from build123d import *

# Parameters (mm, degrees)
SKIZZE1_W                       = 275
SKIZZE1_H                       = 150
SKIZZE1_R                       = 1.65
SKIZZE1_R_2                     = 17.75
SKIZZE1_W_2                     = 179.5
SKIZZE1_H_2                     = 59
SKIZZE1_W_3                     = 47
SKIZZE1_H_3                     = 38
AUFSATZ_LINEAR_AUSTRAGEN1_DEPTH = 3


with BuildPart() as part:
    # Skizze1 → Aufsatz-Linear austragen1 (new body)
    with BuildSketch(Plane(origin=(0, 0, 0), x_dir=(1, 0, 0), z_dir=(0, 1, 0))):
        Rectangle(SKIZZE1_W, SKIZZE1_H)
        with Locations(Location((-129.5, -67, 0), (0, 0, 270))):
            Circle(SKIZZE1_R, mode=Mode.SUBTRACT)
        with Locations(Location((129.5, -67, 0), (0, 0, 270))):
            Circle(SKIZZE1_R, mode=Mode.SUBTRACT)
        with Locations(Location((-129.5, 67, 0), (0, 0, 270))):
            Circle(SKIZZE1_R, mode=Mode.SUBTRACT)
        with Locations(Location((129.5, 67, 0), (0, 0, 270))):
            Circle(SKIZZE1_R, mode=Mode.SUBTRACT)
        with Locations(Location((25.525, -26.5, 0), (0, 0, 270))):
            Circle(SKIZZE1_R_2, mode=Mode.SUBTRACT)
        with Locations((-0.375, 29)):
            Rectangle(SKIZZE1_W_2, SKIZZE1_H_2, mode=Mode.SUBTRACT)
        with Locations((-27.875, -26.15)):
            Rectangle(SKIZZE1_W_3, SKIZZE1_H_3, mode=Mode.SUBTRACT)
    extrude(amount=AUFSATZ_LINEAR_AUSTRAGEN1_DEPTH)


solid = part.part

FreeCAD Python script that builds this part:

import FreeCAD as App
import Part
import Sketcher

V = App.Vector
Q = App.Units.Quantity


def add_polygon(sketch, points):
    """Adds a closed chain of lines whose ends are joined by coincident constraints."""
    first, n = sketch.GeometryCount, len(points)
    for a, b in zip(points, points[1:] + points[:1]):
        sketch.addGeometry(Part.LineSegment(App.Vector(*a, 0), App.Vector(*b, 0)), False)
    for i in range(n):
        sketch.addConstraint(Sketcher.Constraint("Coincident", first + i, 2, first + (i + 1) % n, 1))

doc = App.newDocument("Part")
params = doc.addObject("Spreadsheet::Sheet", "Params")
for row, (alias, value) in enumerate([
    ("sketch1_diameter", "3.3 mm"),
    ("sketch1_diameter2", "35.5 mm"),
    ("sketch1_width", "275 mm"),
    ("sketch1_width2", "47 mm"),
    ("sketch1_height", "150 mm"),
    ("pad1_length", "3 mm"),
], start=1):
    params.set(f"A{row}", alias)
    params.set(f"B{row}", "=" + value)
    params.setAlias(f"B{row}", alias)

body = doc.addObject("PartDesign::Body", "Body")

# Sketch on XZ plane
sketch1 = body.newObject("Sketcher::SketchObject", "Sketch")
sketch1.AttachmentSupport = (doc.getObject("XZ_Plane"), [""])
sketch1.MapMode = "FlatFace"
add_polygon(sketch1, [(-137.5, -75), (-137.5, 75), (137.5, 75), (137.5, -75)])  # lines 0-3
sketch1.addGeometry(Part.Circle(V(-129.5, 67, 0), V(0, 0, 1), 1.6), False)  # 4
add_polygon(sketch1, [(-4.4, 45.1), (-51.4, 45.1), (-51.4, 7.2), (-4.4, 7.2)])  # lines 5-8
sketch1.addGeometry(Part.Circle(V(129.5, 67, 0), V(0, 0, 1), 1.6), False)  # 9
sketch1.addGeometry(Part.Circle(V(25.5, 26.5, 0), V(0, 0, 1), 17.8), False)  # 10
add_polygon(sketch1, [(89.4, 0.5), (-90.1, 0.5), (-90.1, -58.5), (89.4, -58.5)])  # lines 11-14
sketch1.addGeometry(Part.Circle(V(-129.5, -67, 0), V(0, 0, 1), 1.6), False)  # 15
sketch1.addGeometry(Part.Circle(V(129.5, -67, 0), V(0, 0, 1), 1.6), False)  # 16
sketch1.addConstraint(Sketcher.Constraint("Vertical", 0))
sketch1.addConstraint(Sketcher.Constraint("Horizontal", 1))
sketch1.addConstraint(Sketcher.Constraint("Vertical", 2))
sketch1.addConstraint(Sketcher.Constraint("Horizontal", 3))
sketch1.addConstraint(Sketcher.Constraint("Horizontal", 5))
sketch1.addConstraint(Sketcher.Constraint("Vertical", 6))
sketch1.addConstraint(Sketcher.Constraint("Horizontal", 7))
sketch1.addConstraint(Sketcher.Constraint("Vertical", 8))
sketch1.addConstraint(Sketcher.Constraint("Horizontal", 11))
sketch1.addConstraint(Sketcher.Constraint("Vertical", 12))
sketch1.addConstraint(Sketcher.Constraint("Horizontal", 13))
sketch1.addConstraint(Sketcher.Constraint("Vertical", 14))
sketch1.addConstraint(Sketcher.Constraint("Equal", 4, 9))
sketch1.addConstraint(Sketcher.Constraint("Equal", 9, 15))
sketch1.addConstraint(Sketcher.Constraint("Equal", 15, 16))
sketch1.addConstraint(Sketcher.Constraint("Symmetric", 9, 3, 15, 3, -1, 1))
sketch1.addConstraint(Sketcher.Constraint("Symmetric", 4, 3, 16, 3, -1, 1))
sketch1.addConstraint(Sketcher.Constraint("Symmetric", 0, 2, 2, 2, -1, 1))
sketch1.addConstraint(Sketcher.Constraint("Symmetric", 4, 3, 9, 3, -2))
sketch1.addConstraint(Sketcher.Constraint("Diameter", 4, Q("3.3 mm")))
sketch1.addConstraint(Sketcher.Constraint("Diameter", 10, Q("35.5 mm")))
sketch1.addConstraint(Sketcher.Constraint("DistanceX", 1, 1, 1, 2, Q("275 mm")))
sketch1.addConstraint(Sketcher.Constraint("DistanceX", 5, 2, 5, 1, Q("47 mm")))
sketch1.addConstraint(Sketcher.Constraint("DistanceY", 0, 1, 0, 2, Q("150 mm")))
sketch1.addConstraint(Sketcher.Constraint("DistanceY", 6, 2, 6, 1, Q("38 mm")))
sketch1.addConstraint(Sketcher.Constraint("DistanceY", 12, 2, 12, 1, Q("59 mm")))
sketch1.addConstraint(Sketcher.Constraint("DistanceX", 11, 2, 11, 1, Q("179.5 mm")))
sketch1.addConstraint(Sketcher.Constraint("DistanceY", -1, 1, 4, 3, Q("67 mm")))
sketch1.addConstraint(Sketcher.Constraint("DistanceX", 4, 3, 9, 3, Q("259 mm")))
sketch1.addConstraint(Sketcher.Constraint("DistanceY", 13, 2, 10, 3, Q("85 mm")))
sketch1.addConstraint(Sketcher.Constraint("DistanceY", -1, 1, 10, 3, Q("26.5 mm")))
sketch1.addConstraint(Sketcher.Constraint("DistanceX", 5, 2, 10, 3, Q("76.9 mm")))
sketch1.addConstraint(Sketcher.Constraint("DistanceY", -1, 1, 5, 2, Q("45.15 mm")))
sketch1.addConstraint(Sketcher.Constraint("DistanceX", 11, 2, 6, 2, Q("38.75 mm")))
sketch1.addConstraint(Sketcher.Constraint("DistanceX", -1, 1, 10, 3, Q("25.525 mm")))
sketch1.setExpression("Constraints[31]", "Params.sketch1_diameter")
sketch1.setExpression("Constraints[32]", "Params.sketch1_diameter2")
sketch1.setExpression("Constraints[33]", "Params.sketch1_width")
sketch1.setExpression("Constraints[34]", "Params.sketch1_width2")
sketch1.setExpression("Constraints[35]", "Params.sketch1_height")
pad1 = body.newObject("PartDesign::Pad", "Pad")
pad1.Profile = sketch1
pad1.setExpression("Length", "Params.pad1_length")
pad1.Reversed = True

doc.recompute()
